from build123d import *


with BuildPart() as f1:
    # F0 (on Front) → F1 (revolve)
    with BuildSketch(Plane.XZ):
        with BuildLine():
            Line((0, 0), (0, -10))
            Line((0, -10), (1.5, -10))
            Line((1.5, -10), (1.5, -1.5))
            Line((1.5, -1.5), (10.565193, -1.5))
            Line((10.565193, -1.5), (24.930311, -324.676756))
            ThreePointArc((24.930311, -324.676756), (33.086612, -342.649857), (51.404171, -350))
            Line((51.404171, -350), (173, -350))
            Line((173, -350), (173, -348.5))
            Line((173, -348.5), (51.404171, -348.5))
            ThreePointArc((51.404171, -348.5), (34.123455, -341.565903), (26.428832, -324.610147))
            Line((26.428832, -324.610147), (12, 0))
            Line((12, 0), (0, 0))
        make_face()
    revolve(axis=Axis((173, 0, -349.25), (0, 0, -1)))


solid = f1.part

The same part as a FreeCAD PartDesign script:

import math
import FreeCAD as App
import Part
import Sketcher

V = App.Vector
Q = App.Units.Quantity

doc = App.newDocument("Part")
body = doc.addObject("PartDesign::Body", "Body")

# Sketch on XZ plane
sketch1 = doc.addObject("Sketcher::SketchObject", "Sketch")
body.addObject(sketch1)
sketch1.AttachmentSupport = (doc.XZ_Plane, [""])
sketch1.MapMode = "FlatFace"
sketch1.addGeometry([
    Part.LineSegment(V(0, 0, 0), V(0, -10, 0)),  # 0
    Part.LineSegment(V(0, -10, 0), V(1.5, -10, 0)),  # 1
    Part.LineSegment(V(1.5, -10, 0), V(1.5, -1.5, 0)),  # 2
    Part.LineSegment(V(1.5, -1.5, 0), V(10.565193, -1.5, 0)),  # 3
    Part.LineSegment(V(10.565193, -1.5, 0), V(24.930311, -324.676756, 0)),  # 4
    Part.ArcOfCircle(Part.Circle(V(51.404172, -323.499999, 0), V(0, 0, 1), 26.500001), math.radians(-177.454891), math.radians(-90.000001)),  # 5
    Part.LineSegment(V(51.404171, -350, 0), V(173, -350, 0)),  # 6
    Part.LineSegment(V(173, -350, 0), V(173, -348.5, 0)),  # 7
    Part.LineSegment(V(173, -348.5, 0), V(51.404171, -348.5, 0)),  # 8
    Part.ArcOfCircle(Part.Circle(V(51.404171, -323.5, 0), V(0, 0, 1), 25), math.radians(-177.454894), math.radians(-90)),  # 9
    Part.LineSegment(V(26.428832, -324.610147, 0), V(12, 0, 0)),  # 10
    Part.LineSegment(V(12, 0, 0), V(0, 0, 0)),  # 11
], False)
sketch1.addGeometry(Part.LineSegment(V(173, 0, 0), V(173, -350, 0)), True)  # axis
sketch1.addConstraint([
    Sketcher.Constraint("Coincident", 0, 2, 1, 1),
    Sketcher.Constraint("Coincident", 1, 2, 2, 1),
    Sketcher.Constraint("Coincident", 2, 2, 3, 1),
    Sketcher.Constraint("Coincident", 3, 2, 4, 1),
    Sketcher.Constraint("Tangent", 4, 2, 5, 1),
    Sketcher.Constraint("Tangent", 5, 2, 6, 1),
    Sketcher.Constraint("Coincident", 6, 2, 7, 1),
    Sketcher.Constraint("Coincident", 7, 2, 8, 1),
    Sketcher.Constraint("Tangent", 8, 2, 9, 2),
    Sketcher.Constraint("Tangent", 9, 1, 10, 1),
    Sketcher.Constraint("Coincident", 10, 2, 11, 1),
    Sketcher.Constraint("Coincident", 11, 2, 0, 1),
    Sketcher.Constraint("Vertical", 0),
    Sketcher.Constraint("Horizontal", 1),
    Sketcher.Constraint("Vertical", 2),
    Sketcher.Constraint("Horizontal", 3),
    Sketcher.Constraint("Horizontal", 6),
    Sketcher.Constraint("Vertical", 7),
    Sketcher.Constraint("Horizontal", 8),
    Sketcher.Constraint("Horizontal", 11),
    Sketcher.Constraint("Vertical", 12),
    Sketcher.Constraint("Coincident", 11, 2, -1, 1),
    Sketcher.Constraint("Coincident", 9, 3, 5, 3),
    Sketcher.Constraint("Coincident", 12, 2, 6, 2),
    Sketcher.Constraint("PointOnObject", 12, 1, -1),
    Sketcher.Constraint("Parallel", 4, 10),
    Sketcher.Constraint("Equal", 1, 7),
    Sketcher.Constraint("Radius", 9, Q("25 mm")),
    Sketcher.Constraint("Radius", 5, Q("26.500001 mm")),
    Sketcher.Constraint("DistanceX", 11, 2, 11, 1, Q("12 mm")),
    Sketcher.Constraint("DistanceY", 0, 2, 0, 1, Q("10 mm")),
    Sketcher.Constraint("DistanceY", 12, 2, 12, 1, Q("350 mm")),
    Sketcher.Constraint("DistanceY", 2, 1, 2, 2, Q("8.5 mm")),
    Sketcher.Constraint("DistanceX", -1, 1, 6, 2, Q("173 mm")),
    Sketcher.Constraint("DistanceX", 6, 1, 6, 2, Q("121.595829 mm")),
])
revolution = doc.addObject("PartDesign::Revolution", "Revolution")
body.addObject(revolution)
revolution.Profile = sketch1
revolution.ReferenceAxis = (sketch1, ["Axis0"])
revolution.Angle = 360

doc.recompute()
